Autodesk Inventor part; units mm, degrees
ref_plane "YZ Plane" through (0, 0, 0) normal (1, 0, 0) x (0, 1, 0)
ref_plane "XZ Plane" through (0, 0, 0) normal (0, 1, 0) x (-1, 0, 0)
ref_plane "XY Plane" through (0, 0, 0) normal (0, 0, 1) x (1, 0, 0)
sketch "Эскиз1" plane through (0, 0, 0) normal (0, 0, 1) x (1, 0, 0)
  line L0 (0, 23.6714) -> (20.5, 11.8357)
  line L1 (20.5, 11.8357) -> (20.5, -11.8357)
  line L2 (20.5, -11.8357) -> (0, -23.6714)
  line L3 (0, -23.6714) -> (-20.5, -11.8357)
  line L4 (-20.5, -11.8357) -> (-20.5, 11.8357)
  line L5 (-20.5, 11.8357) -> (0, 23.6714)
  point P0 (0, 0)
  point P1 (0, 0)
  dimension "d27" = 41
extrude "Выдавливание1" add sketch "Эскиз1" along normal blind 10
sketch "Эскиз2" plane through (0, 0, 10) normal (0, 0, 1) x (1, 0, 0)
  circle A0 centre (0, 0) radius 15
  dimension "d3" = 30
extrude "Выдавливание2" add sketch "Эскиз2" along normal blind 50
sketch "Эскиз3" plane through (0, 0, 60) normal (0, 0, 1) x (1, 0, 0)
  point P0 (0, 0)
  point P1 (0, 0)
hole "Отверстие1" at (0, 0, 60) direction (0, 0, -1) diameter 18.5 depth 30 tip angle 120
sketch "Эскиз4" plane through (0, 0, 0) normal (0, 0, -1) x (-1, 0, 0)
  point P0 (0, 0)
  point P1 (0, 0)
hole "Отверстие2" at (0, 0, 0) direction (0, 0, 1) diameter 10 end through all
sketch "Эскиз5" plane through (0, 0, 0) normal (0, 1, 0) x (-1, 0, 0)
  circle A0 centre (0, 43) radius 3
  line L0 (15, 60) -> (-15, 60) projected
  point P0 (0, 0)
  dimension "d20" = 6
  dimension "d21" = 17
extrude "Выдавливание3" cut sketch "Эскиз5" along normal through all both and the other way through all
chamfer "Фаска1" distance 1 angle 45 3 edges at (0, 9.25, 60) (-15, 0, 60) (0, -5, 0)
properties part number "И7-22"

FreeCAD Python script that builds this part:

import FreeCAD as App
import Part
import Sketcher
from FreeCAD import Vector
Q = App.Units.Quantity


def edges_at(feature, points):
    """Names of the edges that pass closest to the given points."""
    edges = feature.Shape.Edges
    near = lambda p: min(range(len(edges)), key=lambda i: edges[i].distToShape(Part.Vertex(*p))[0])
    return sorted({f"Edge{near(p) + 1}" for p in points})


def add_polygon(sketch, points):
    """Adds a closed chain of lines whose ends are joined by coincident constraints."""
    first, n = sketch.GeometryCount, len(points)
    for a, b in zip(points, points[1:] + points[:1]):
        sketch.addGeometry(Part.LineSegment(App.Vector(*a, 0), App.Vector(*b, 0)), False)
    for i in range(n):
        sketch.addConstraint(Sketcher.Constraint("Coincident", first + i, 2, first + (i + 1) % n, 1))

doc = App.newDocument("Part")
params = doc.addObject("Spreadsheet::Sheet", "Params")
for row, (alias, value) in enumerate([
    ("pad1_length", "10 mm"),
    ("sketch2_diameter", "30 mm"),
    ("pad2_length", "50 mm"),
    ("sketch3_diameter", "18.5 mm"),
    ("hole_diameter", "18.5 mm"),
    ("hole_depth", "30 mm"),
    ("sketch4_diameter", "10 mm"),
    ("hole2_diameter", "10 mm"),
    ("sketch5_diameter", "6 mm"),
    ("chamfer_size", "1 mm"),
], start=1):
    params.set(f"A{row}", alias)
    params.set(f"B{row}", "=" + value)
    params.setAlias(f"B{row}", alias)

body = doc.addObject("PartDesign::Body", "Body")

# Sketch on XY plane
sketch1 = doc.addObject("Sketcher::SketchObject", "Sketch")
body.addObject(sketch1)
sketch1.AttachmentSupport = (doc.XY_Plane, [""])
sketch1.MapMode = "FlatFace"
add_polygon(sketch1, [(20, 12), (0, 24), (-20, 12), (-20, -12), (0, -24), (20, -12)])  # lines 0-5
sketch1.addConstraint([
    Sketcher.Constraint("Vertical", 2),
    Sketcher.Constraint("Vertical", 5),
    Sketcher.Constraint("Symmetric", 0, 2, 3, 2, -1, 1),
    Sketcher.Constraint("Symmetric", 1, 2, 4, 2, -1, 1),
    Sketcher.Constraint("PointOnObject", 0, 2, -2),
    Sketcher.Constraint("Parallel", 0, 3),
    Sketcher.Constraint("Horizontal", 2, 2, 4, 2),
    Sketcher.Constraint("DistanceX", 2, 2, 4, 2, 41.0),
    Sketcher.Constraint("Angle", 0, Q("150 deg")),
    Sketcher.Constraint("DistanceY", 2, 2, 2, 1, 23.6714),
])
pad1 = doc.addObject("PartDesign::Pad", "Pad")
body.addObject(pad1)
pad1.Profile = sketch1
pad1.setExpression("Length", "Params.pad1_length")

# Sketch on XY plane
sketch2 = doc.addObject("Sketcher::SketchObject", "Sketch001")
body.addObject(sketch2)
sketch2.AttachmentSupport = (doc.XY_Plane, [""])
sketch2.MapMode = "FlatFace"
sketch2.AttachmentOffset = App.Placement(Vector(0, 0, 10), App.Rotation())
sketch2.addGeometry(Part.Circle(Vector(0, 0, 0), Vector(0, 0, 1), 15), False)
sketch2.addConstraint([
    Sketcher.Constraint("Coincident", 0, 3, -1, 1),
    Sketcher.Constraint("Diameter", 0, 30.0),
])
sketch2.setExpression("Constraints[1]", "Params.sketch2_diameter")
pad2 = doc.addObject("PartDesign::Pad", "Pad001")
body.addObject(pad2)
pad2.Profile = sketch2
pad2.setExpression("Length", "Params.pad2_length")

# Sketch on XY plane
sketch3 = doc.addObject("Sketcher::SketchObject", "Sketch002")
body.addObject(sketch3)
sketch3.AttachmentSupport = (doc.XY_Plane, [""])
sketch3.MapMode = "FlatFace"
sketch3.AttachmentOffset = App.Placement(Vector(0, 0, 60), App.Rotation())
sketch3.addGeometry(Part.Circle(Vector(0, 0, 0), Vector(0, 0, 1), 9), False)
sketch3.addConstraint([
    Sketcher.Constraint("Coincident", 0, 3, -1, 1),
    Sketcher.Constraint("Diameter", 0, 18.5),
])
sketch3.setExpression("Constraints[1]", "Params.sketch3_diameter")
doc.recompute()
hole = doc.addObject("PartDesign::Hole", "Hole")
body.addObject(hole)
hole.Profile = sketch3
hole.ThreadType = "None"
hole.setExpression("Diameter", "Params.hole_diameter")
hole.DepthType = "Dimension"
hole.setExpression("Depth", "Params.hole_depth")
hole.DrillPoint = "Angled"
hole.DrillPointAngle = 120

# Sketch on XY plane
sketch4 = doc.addObject("Sketcher::SketchObject", "Sketch003")
body.addObject(sketch4)
sketch4.AttachmentSupport = (doc.XY_Plane, [""])
sketch4.MapMode = "FlatFace"
sketch4.addGeometry(Part.Circle(Vector(0, 0, 0), Vector(0, 0, 1), 5), False)
sketch4.addConstraint([
    Sketcher.Constraint("Coincident", 0, 3, -1, 1),
    Sketcher.Constraint("Diameter", 0, 10.0),
])
sketch4.setExpression("Constraints[1]", "Params.sketch4_diameter")
doc.recompute()
hole2 = doc.addObject("PartDesign::Hole", "Hole001")
body.addObject(hole2)
hole2.Profile = sketch4
hole2.ThreadType = "None"
hole2.setExpression("Diameter", "Params.hole2_diameter")
hole2.DepthType = "ThroughAll"
hole2.Reversed = True

# Sketch on XZ plane
sketch5 = doc.addObject("Sketcher::SketchObject", "Sketch004")
body.addObject(sketch5)
sketch5.AttachmentSupport = (doc.XZ_Plane, [""])
sketch5.MapMode = "FlatFace"
sketch5.addGeometry(Part.Circle(Vector(0, 43, 0), Vector(0, 0, 1), 3), False)
sketch5.addConstraint([
    Sketcher.Constraint("PointOnObject", 0, 3, -2),
    Sketcher.Constraint("Diameter", 0, 6.0),
    Sketcher.Constraint("DistanceY", -1, 1, 0, 3, 43.0),
])
sketch5.setExpression("Constraints[1]", "Params.sketch5_diameter")
pocket1 = doc.addObject("PartDesign::Pocket", "Pocket")
body.addObject(pocket1)
pocket1.Profile = sketch5
pocket1.Type = "ThroughAll"
pocket1.Midplane = True
doc.recompute()

chamfer = doc.addObject("PartDesign::Chamfer", "Chamfer")
body.addObject(chamfer)
chamfer.Base = (pocket1, edges_at(pocket1, [(0, 9.25, 60), (-15, 0, 60), (0, -5, 0)]))
chamfer.setExpression("Size", "Params.chamfer_size")

doc.recompute()
